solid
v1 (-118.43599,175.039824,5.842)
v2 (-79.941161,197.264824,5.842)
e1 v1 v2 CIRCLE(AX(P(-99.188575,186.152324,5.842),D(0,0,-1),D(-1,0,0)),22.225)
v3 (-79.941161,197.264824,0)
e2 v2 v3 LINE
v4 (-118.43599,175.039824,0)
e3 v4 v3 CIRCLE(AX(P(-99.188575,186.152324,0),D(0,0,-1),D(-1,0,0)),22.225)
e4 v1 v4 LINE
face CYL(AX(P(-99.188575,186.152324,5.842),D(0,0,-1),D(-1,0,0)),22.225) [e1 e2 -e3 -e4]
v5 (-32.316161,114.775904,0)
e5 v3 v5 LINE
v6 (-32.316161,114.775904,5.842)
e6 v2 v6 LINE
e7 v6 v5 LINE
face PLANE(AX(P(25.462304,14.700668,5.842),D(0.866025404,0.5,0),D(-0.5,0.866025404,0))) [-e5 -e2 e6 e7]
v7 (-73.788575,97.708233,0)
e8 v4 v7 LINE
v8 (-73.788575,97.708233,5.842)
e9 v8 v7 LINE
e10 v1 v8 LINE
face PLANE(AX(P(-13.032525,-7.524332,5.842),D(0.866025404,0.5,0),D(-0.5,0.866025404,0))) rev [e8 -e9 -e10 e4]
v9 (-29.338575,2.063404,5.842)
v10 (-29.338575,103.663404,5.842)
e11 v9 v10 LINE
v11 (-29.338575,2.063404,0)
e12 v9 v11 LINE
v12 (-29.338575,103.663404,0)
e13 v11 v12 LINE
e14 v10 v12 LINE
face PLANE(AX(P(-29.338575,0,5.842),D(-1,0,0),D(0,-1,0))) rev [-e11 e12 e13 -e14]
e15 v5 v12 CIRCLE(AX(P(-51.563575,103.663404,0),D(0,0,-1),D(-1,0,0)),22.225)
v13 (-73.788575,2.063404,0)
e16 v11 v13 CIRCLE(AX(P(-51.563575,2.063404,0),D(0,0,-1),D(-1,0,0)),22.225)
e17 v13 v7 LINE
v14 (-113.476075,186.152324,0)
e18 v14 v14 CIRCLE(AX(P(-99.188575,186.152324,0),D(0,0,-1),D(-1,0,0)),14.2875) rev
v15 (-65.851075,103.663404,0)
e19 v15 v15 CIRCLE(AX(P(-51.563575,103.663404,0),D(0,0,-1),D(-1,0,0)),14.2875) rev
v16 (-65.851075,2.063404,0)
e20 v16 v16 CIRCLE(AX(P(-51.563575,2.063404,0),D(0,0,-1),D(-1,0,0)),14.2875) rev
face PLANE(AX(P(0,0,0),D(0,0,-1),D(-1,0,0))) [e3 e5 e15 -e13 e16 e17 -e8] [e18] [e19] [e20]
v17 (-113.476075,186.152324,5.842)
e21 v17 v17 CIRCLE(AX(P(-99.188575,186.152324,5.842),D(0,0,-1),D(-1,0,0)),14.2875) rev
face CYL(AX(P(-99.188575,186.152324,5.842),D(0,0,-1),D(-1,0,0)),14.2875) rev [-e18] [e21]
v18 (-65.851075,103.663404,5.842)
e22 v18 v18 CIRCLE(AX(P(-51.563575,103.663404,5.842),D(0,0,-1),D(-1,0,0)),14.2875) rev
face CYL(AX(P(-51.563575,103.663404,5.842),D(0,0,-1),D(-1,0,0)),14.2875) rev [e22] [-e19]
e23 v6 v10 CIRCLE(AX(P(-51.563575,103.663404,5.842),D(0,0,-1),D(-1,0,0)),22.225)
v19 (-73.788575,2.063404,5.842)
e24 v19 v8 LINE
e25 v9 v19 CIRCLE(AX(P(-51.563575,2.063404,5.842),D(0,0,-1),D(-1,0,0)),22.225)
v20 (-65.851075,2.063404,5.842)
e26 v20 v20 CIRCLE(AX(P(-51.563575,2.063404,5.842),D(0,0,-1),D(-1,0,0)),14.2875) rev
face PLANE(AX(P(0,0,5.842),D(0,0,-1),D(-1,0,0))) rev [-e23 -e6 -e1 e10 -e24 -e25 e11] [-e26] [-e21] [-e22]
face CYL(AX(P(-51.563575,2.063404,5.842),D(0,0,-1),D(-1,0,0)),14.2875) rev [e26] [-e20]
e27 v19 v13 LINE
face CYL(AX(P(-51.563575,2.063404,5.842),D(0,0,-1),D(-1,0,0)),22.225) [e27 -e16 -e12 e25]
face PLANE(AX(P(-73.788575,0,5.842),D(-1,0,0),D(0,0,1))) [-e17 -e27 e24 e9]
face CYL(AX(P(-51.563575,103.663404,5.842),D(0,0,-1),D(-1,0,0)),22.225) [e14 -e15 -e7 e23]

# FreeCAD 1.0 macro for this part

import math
import FreeCAD as App
import Part
import Sketcher
from FreeCAD import Vector
Q = App.Units.Quantity

doc = App.newDocument("Part")
body = doc.addObject("PartDesign::Body", "Body")

# Sketch on XY plane
sketch1 = doc.addObject("Sketcher::SketchObject", "Sketch")
body.addObject(sketch1)
sketch1.AttachmentSupport = (doc.XY_Plane, [""])
sketch1.MapMode = "FlatFace"
sketch1.addGeometry(Part.LineSegment(Vector(-74, 2, 0), Vector(-74, 98, 0)), False)
sketch1.addGeometry(Part.LineSegment(Vector(-74, 98, 0), Vector(-118, 175, 0)), False)
sketch1.addGeometry(Part.ArcOfCircle(Part.Circle(Vector(-99, 186, 0), Vector(0, 0, 1), 22), math.radians(30), math.radians(210)), False)
sketch1.addGeometry(Part.LineSegment(Vector(-80, 197, 0), Vector(-32, 115, 0)), False)
sketch1.addGeometry(Part.ArcOfCircle(Part.Circle(Vector(-52, 104, 0), Vector(0, 0, 1), 22), math.radians(0), math.radians(30)), False)
sketch1.addGeometry(Part.LineSegment(Vector(-29, 104, 0), Vector(-29, 2, 0)), False)
sketch1.addGeometry(Part.ArcOfCircle(Part.Circle(Vector(-52, 2, 0), Vector(0, 0, 1), 22), math.radians(180), math.radians(360)), False)
sketch1.addGeometry(Part.Circle(Vector(-52, 2, 0), Vector(0, 0, 1), 14), False)
sketch1.addGeometry(Part.Circle(Vector(-52, 104, 0), Vector(0, 0, 1), 14), False)
sketch1.addGeometry(Part.Circle(Vector(-99, 186, 0), Vector(0, 0, 1), 14), False)
sketch1.addConstraint(Sketcher.Constraint("Coincident", 0, 2, 1, 1))
sketch1.addConstraint(Sketcher.Constraint("Tangent", 1, 2, 2, 2))
sketch1.addConstraint(Sketcher.Constraint("Tangent", 2, 1, 3, 1))
sketch1.addConstraint(Sketcher.Constraint("Tangent", 3, 2, 4, 2))
sketch1.addConstraint(Sketcher.Constraint("Tangent", 4, 1, 5, 1))
sketch1.addConstraint(Sketcher.Constraint("Tangent", 5, 2, 6, 2))
sketch1.addConstraint(Sketcher.Constraint("Tangent", 6, 1, 0, 1))
sketch1.addConstraint(Sketcher.Constraint("Vertical", 0))
sketch1.addConstraint(Sketcher.Constraint("Vertical", 5))
sketch1.addConstraint(Sketcher.Constraint("Coincident", 7, 3, 6, 3))
sketch1.addConstraint(Sketcher.Constraint("Coincident", 8, 3, 4, 3))
sketch1.addConstraint(Sketcher.Constraint("Coincident", 9, 3, 2, 3))
sketch1.addConstraint(Sketcher.Constraint("Equal", 2, 4))
sketch1.addConstraint(Sketcher.Constraint("Equal", 4, 6))
sketch1.addConstraint(Sketcher.Constraint("Equal", 7, 8))
sketch1.addConstraint(Sketcher.Constraint("Equal", 8, 9))
sketch1.addConstraint(Sketcher.Constraint("Parallel", 1, 3))
sketch1.addConstraint(Sketcher.Constraint("DistanceY", 5, 2, 5, 1, Q("4 in")))
sketch1.addConstraint(Sketcher.Constraint("Diameter", 7, Q("1.125 in")))
sketch1.addConstraint(Sketcher.Constraint("Angle", 1, Q("120 deg")))
sketch1.addConstraint(Sketcher.Constraint("Radius", 2, Q("0.875 in")))
sketch1.addConstraint(Sketcher.Constraint("DistanceX", 2, 3, 0, 2, Q("1 in")))
sketch1.addConstraint(Sketcher.Constraint("DistanceX", 1, 2, -1, 1, 118.43599))
sketch1.addConstraint(Sketcher.Constraint("DistanceY", -1, 1, 2, 3, 186.152324))
pad1 = doc.addObject("PartDesign::Pad", "Pad")
body.addObject(pad1)
pad1.Profile = sketch1
pad1.Length = Q("0.23 in")

doc.recompute()
